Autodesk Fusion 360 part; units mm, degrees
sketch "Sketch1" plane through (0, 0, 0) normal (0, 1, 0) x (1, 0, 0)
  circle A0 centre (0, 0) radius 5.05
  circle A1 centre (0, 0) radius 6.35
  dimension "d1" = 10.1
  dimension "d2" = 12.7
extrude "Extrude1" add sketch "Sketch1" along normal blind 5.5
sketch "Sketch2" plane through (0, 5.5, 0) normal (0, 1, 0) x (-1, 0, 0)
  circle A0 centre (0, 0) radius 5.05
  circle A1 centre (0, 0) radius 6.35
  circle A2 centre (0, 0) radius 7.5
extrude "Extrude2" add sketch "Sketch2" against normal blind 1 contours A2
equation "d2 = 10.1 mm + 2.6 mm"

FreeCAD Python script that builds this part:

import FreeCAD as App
import Part
import Sketcher

doc = App.newDocument("Part")
body = doc.addObject("PartDesign::Body", "Body")

# Sketch on XZ plane
sketch1 = body.newObject("Sketcher::SketchObject", "Sketch")
sketch1.AttachmentSupport = (doc.getObject("XZ_Plane"), [""])
sketch1.MapMode = "FlatFace"
sketch1.addGeometry(Part.Circle(App.Vector(0, 0, 0), App.Vector(0, 0, 1), 6), False)
sketch1.addGeometry(Part.Circle(App.Vector(0, 0, 0), App.Vector(0, 0, 1), 5), False)
sketch1.addConstraint(Sketcher.Constraint("Coincident", 0, 3, -1, 1))
sketch1.addConstraint(Sketcher.Constraint("Coincident", 1, 3, -1, 1))
sketch1.addConstraint(Sketcher.Constraint("Diameter", 0, 12.7))
sketch1.addConstraint(Sketcher.Constraint("Diameter", 1, 10.1))
pad1 = body.newObject("PartDesign::Pad", "Pad")
pad1.Profile = sketch1
pad1.Length = 5.5
pad1.Reversed = True

# Sketch on XZ plane
sketch2 = body.newObject("Sketcher::SketchObject", "Sketch001")
sketch2.AttachmentSupport = (doc.getObject("XZ_Plane"), [""])
sketch2.MapMode = "FlatFace"
sketch2.AttachmentOffset = App.Placement(App.Vector(0, 0, -5.5), App.Rotation())
sketch2.addGeometry(Part.Circle(App.Vector(0, 0, 0), App.Vector(0, 0, 1), 8), False)
sketch2.addGeometry(Part.Circle(App.Vector(0, 0, 0), App.Vector(0, 0, 1), 6), False)
sketch2.addConstraint(Sketcher.Constraint("Coincident", 0, 3, -1, 1))
sketch2.addConstraint(Sketcher.Constraint("Coincident", 1, 3, -1, 1))
sketch2.addConstraint(Sketcher.Constraint("Diameter", 0, 15.0))
sketch2.addConstraint(Sketcher.Constraint("Diameter", 1, 12.7))
pad2 = body.newObject("PartDesign::Pad", "Pad001")
pad2.Profile = sketch2
pad2.Length = 1

doc.recompute()
